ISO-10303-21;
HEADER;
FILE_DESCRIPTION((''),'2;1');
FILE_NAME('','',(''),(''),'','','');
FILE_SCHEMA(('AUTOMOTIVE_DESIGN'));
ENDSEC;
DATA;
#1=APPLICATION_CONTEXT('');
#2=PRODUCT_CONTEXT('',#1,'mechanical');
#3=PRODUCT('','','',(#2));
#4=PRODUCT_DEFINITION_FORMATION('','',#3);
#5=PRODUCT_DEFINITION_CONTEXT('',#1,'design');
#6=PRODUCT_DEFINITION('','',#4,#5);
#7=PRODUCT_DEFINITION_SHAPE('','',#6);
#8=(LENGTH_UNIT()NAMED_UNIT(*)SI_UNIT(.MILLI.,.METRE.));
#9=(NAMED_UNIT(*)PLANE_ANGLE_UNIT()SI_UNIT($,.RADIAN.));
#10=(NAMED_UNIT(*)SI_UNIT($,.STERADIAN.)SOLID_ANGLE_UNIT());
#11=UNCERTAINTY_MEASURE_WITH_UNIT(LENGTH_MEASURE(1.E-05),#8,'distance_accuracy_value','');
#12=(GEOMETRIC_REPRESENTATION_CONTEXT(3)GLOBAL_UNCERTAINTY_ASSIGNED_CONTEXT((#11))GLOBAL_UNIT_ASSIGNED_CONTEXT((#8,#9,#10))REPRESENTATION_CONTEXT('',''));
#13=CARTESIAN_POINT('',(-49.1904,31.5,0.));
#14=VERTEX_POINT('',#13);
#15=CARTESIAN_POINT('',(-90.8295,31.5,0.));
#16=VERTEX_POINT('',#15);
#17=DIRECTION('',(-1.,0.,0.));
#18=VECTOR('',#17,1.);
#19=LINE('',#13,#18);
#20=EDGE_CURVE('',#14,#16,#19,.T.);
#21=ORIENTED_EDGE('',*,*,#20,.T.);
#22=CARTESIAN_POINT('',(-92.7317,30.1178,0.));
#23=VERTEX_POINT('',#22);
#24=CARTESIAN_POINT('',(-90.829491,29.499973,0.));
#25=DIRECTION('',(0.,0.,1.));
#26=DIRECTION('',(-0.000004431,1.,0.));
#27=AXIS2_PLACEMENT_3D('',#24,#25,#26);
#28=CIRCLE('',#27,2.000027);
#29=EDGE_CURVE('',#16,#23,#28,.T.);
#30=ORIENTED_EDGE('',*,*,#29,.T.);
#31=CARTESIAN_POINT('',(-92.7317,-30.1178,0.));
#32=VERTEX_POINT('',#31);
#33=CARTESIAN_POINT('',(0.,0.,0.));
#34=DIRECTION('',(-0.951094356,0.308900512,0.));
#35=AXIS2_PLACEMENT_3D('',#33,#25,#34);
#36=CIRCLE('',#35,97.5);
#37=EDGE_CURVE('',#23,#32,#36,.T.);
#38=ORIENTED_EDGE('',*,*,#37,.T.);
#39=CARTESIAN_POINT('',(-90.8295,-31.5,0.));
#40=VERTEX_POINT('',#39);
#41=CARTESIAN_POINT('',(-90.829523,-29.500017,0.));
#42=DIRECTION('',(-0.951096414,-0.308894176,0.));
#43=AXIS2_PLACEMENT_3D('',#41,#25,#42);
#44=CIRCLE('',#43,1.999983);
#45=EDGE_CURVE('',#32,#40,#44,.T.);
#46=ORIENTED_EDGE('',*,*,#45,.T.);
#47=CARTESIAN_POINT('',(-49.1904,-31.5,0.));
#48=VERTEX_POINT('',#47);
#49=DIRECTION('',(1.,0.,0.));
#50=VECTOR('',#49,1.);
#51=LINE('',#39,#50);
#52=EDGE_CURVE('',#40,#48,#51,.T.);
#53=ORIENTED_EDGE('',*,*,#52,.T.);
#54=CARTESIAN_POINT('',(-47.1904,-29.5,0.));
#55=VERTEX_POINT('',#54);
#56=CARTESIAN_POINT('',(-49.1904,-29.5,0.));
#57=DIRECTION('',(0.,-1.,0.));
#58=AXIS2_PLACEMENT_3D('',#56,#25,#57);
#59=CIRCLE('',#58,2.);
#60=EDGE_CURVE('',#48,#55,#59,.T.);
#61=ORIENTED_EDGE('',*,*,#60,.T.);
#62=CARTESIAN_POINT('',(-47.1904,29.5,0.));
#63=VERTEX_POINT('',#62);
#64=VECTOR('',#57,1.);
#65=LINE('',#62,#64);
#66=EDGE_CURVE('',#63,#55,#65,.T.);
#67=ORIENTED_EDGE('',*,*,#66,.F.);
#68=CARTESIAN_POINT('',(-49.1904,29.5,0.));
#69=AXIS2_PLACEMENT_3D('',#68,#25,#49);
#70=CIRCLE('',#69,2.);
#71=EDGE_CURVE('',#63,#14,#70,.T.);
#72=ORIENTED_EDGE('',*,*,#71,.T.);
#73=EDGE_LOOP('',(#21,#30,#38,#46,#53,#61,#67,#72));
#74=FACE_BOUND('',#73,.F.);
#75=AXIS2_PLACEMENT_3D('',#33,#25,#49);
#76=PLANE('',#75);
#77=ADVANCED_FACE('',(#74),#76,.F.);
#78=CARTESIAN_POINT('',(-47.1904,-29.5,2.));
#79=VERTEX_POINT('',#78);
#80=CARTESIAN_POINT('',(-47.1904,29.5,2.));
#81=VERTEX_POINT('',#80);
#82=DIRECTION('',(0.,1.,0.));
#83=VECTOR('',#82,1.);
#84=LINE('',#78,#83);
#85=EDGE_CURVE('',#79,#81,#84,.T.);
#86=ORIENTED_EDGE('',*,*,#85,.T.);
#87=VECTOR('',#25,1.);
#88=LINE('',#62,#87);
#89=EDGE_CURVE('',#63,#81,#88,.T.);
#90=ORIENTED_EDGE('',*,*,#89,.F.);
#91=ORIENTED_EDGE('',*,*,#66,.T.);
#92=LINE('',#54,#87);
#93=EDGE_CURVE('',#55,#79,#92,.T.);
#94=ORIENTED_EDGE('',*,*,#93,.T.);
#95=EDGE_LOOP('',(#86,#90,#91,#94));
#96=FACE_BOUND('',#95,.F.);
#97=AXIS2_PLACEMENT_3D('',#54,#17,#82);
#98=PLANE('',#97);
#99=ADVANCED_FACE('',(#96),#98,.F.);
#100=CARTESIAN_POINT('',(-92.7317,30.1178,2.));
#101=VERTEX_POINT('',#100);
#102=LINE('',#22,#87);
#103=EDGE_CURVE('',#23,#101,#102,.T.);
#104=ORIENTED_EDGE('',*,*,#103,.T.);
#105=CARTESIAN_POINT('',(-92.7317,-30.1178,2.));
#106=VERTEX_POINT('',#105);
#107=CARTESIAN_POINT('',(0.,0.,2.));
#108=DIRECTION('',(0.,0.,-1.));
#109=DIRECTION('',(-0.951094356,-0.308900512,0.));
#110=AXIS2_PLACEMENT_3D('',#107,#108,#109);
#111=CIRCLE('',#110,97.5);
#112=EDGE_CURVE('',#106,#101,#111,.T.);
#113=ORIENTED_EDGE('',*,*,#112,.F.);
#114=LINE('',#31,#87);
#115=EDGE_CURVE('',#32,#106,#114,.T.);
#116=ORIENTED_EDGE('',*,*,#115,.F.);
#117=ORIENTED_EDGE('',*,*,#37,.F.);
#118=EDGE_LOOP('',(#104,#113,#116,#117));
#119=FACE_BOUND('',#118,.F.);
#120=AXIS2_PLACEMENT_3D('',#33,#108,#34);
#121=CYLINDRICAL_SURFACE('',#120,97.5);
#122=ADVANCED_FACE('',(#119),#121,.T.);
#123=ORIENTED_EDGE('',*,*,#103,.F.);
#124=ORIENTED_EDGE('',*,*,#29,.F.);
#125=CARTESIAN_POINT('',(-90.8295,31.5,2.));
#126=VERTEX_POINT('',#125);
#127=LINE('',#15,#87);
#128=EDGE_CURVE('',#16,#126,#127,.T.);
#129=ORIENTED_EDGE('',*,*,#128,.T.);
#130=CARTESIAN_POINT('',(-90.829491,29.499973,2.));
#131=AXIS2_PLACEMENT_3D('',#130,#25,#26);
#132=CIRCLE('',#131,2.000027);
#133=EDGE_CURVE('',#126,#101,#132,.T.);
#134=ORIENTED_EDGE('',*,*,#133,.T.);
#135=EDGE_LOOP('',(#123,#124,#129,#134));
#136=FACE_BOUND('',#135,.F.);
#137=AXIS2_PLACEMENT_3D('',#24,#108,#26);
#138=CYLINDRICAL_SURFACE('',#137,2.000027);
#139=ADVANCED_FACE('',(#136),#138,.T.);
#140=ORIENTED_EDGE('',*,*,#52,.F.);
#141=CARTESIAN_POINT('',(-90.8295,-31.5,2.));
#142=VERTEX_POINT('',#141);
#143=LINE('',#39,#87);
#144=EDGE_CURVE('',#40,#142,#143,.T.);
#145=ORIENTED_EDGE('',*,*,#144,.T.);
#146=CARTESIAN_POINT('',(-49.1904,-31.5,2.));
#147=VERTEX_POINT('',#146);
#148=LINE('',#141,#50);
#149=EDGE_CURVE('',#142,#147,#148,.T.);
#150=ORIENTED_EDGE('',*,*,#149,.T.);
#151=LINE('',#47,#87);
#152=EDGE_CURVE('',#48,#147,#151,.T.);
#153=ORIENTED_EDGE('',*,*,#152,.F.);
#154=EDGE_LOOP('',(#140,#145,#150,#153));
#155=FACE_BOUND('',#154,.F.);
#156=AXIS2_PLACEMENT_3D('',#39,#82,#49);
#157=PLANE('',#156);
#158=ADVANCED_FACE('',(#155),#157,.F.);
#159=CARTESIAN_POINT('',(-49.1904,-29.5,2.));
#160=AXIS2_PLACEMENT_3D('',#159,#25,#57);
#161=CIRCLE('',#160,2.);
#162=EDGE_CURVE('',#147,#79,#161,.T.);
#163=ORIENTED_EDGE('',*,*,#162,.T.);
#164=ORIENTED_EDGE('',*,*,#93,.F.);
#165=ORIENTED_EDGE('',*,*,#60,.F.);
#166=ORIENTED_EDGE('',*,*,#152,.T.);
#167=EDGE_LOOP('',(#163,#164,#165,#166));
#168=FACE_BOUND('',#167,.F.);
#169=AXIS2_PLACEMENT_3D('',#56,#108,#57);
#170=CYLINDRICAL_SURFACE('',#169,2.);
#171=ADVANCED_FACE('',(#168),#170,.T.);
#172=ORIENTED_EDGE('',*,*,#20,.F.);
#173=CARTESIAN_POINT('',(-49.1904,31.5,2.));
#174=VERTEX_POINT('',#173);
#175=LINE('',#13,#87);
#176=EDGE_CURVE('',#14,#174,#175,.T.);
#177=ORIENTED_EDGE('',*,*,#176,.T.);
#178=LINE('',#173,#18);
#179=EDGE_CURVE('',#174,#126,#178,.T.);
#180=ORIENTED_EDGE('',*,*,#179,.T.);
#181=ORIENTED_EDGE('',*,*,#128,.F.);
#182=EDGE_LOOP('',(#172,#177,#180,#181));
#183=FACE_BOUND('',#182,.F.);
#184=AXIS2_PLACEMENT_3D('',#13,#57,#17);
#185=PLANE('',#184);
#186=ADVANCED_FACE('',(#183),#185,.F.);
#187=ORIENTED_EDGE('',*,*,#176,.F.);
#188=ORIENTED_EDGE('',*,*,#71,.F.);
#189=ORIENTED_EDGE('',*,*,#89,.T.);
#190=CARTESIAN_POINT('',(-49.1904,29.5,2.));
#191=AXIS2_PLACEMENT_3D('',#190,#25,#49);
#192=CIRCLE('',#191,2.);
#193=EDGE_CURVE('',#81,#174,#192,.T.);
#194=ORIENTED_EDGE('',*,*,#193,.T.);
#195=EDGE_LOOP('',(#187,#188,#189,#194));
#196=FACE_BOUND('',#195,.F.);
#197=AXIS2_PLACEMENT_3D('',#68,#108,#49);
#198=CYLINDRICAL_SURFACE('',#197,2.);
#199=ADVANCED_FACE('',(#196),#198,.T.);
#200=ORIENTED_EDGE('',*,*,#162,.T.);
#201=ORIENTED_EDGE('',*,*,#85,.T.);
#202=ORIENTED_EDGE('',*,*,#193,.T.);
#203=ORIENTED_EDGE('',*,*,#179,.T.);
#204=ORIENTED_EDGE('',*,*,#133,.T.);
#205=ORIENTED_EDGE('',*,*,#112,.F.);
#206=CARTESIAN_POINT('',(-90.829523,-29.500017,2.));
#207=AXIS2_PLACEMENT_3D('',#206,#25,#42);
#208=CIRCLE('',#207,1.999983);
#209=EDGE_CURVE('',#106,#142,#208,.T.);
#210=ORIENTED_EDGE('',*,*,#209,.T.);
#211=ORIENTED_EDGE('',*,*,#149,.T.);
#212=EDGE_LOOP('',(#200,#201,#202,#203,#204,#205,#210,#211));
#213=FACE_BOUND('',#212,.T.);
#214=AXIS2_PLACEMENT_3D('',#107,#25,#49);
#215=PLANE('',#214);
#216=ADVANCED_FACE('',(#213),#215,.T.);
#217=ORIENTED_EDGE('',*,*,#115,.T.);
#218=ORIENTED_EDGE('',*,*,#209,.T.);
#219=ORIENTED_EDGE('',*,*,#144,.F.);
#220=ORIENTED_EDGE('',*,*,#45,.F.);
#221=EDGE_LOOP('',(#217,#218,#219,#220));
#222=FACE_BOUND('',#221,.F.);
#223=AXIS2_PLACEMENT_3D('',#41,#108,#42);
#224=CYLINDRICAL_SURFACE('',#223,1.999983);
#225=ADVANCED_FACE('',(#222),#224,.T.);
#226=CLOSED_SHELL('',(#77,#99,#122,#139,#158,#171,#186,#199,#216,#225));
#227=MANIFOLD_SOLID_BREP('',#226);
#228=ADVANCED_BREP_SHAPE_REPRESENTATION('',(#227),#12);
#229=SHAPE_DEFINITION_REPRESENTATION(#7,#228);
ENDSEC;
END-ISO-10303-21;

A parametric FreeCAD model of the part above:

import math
import FreeCAD as App
import Part
import Sketcher

V = App.Vector

doc = App.newDocument("Part")
body = doc.addObject("PartDesign::Body", "Body")

sketch1 = body.newObject("Sketcher::SketchObject", "Sketch")
sketch1.AttachmentSupport = (doc.getObject("XY_Plane"), [""])
sketch1.MapMode = "FlatFace"
sketch1.addGeometry(Part.ArcOfCircle(Part.Circle(V(-90.8295, -29.5, 0), V(0, 0, 1), 2.00001), math.radians(-162.007145), math.radians(-90)), False)
sketch1.addGeometry(Part.LineSegment(V(-90.8295, -31.5, 0), V(-49.1904, -31.5, 0)), False)
sketch1.addGeometry(Part.ArcOfCircle(Part.Circle(V(-49.1904, -29.5, 0), V(0, 0, 1), 2), math.radians(-90), math.radians(0)), False)
sketch1.addGeometry(Part.LineSegment(V(-47.1904, -29.5, 0), V(-47.1904, 29.5, 0)), False)
sketch1.addGeometry(Part.ArcOfCircle(Part.Circle(V(-49.1904, 29.5, 0), V(0, 0, 1), 2), math.radians(0), math.radians(90)), False)
sketch1.addGeometry(Part.LineSegment(V(-49.1904, 31.5, 0), V(-90.8295, 31.5, 0)), False)
sketch1.addGeometry(Part.ArcOfCircle(Part.Circle(V(-90.8295, 29.5, 0), V(0, 0, 1), 2), math.radians(90), math.radians(162.007145)), False)
sketch1.addGeometry(Part.ArcOfCircle(Part.Circle(V(0, 0, 0), V(0, 0, 1), 97.5), math.radians(162.007017), math.radians(197.992983)), False)
sketch1.addConstraint(Sketcher.Constraint("Tangent", 0, 2, 1, 1))
sketch1.addConstraint(Sketcher.Constraint("Tangent", 1, 2, 2, 1))
sketch1.addConstraint(Sketcher.Constraint("Tangent", 2, 2, 3, 1))
sketch1.addConstraint(Sketcher.Constraint("Tangent", 3, 2, 4, 1))
sketch1.addConstraint(Sketcher.Constraint("Tangent", 4, 2, 5, 1))
sketch1.addConstraint(Sketcher.Constraint("Tangent", 5, 2, 6, 1))
sketch1.addConstraint(Sketcher.Constraint("Tangent", 6, 2, 7, 1))
sketch1.addConstraint(Sketcher.Constraint("Tangent", 7, 2, 0, 1))
sketch1.addConstraint(Sketcher.Constraint("Horizontal", 1))
sketch1.addConstraint(Sketcher.Constraint("Vertical", 3))
sketch1.addConstraint(Sketcher.Constraint("Horizontal", 5))
sketch1.addConstraint(Sketcher.Constraint("Coincident", 7, 3, -1, 1))
sketch1.addConstraint(Sketcher.Constraint("Equal", 0, 2))
sketch1.addConstraint(Sketcher.Constraint("Equal", 2, 4))
sketch1.addConstraint(Sketcher.Constraint("Equal", 4, 6))
sketch1.addConstraint(Sketcher.Constraint("Vertical", 0, 3, 6, 3))
sketch1.addConstraint(Sketcher.Constraint("Radius", 0, 2.0))
sketch1.addConstraint(Sketcher.Constraint("Radius", 7, 97.5))
sketch1.addConstraint(Sketcher.Constraint("DistanceY", 3, 1, 3, 2, 59.0))
sketch1.addConstraint(Sketcher.Constraint("DistanceX", 1, 1, 1, 2, 41.639))
pad1 = body.newObject("PartDesign::Pad", "Pad")
pad1.Profile = sketch1
pad1.Length = 2

doc.recompute()
